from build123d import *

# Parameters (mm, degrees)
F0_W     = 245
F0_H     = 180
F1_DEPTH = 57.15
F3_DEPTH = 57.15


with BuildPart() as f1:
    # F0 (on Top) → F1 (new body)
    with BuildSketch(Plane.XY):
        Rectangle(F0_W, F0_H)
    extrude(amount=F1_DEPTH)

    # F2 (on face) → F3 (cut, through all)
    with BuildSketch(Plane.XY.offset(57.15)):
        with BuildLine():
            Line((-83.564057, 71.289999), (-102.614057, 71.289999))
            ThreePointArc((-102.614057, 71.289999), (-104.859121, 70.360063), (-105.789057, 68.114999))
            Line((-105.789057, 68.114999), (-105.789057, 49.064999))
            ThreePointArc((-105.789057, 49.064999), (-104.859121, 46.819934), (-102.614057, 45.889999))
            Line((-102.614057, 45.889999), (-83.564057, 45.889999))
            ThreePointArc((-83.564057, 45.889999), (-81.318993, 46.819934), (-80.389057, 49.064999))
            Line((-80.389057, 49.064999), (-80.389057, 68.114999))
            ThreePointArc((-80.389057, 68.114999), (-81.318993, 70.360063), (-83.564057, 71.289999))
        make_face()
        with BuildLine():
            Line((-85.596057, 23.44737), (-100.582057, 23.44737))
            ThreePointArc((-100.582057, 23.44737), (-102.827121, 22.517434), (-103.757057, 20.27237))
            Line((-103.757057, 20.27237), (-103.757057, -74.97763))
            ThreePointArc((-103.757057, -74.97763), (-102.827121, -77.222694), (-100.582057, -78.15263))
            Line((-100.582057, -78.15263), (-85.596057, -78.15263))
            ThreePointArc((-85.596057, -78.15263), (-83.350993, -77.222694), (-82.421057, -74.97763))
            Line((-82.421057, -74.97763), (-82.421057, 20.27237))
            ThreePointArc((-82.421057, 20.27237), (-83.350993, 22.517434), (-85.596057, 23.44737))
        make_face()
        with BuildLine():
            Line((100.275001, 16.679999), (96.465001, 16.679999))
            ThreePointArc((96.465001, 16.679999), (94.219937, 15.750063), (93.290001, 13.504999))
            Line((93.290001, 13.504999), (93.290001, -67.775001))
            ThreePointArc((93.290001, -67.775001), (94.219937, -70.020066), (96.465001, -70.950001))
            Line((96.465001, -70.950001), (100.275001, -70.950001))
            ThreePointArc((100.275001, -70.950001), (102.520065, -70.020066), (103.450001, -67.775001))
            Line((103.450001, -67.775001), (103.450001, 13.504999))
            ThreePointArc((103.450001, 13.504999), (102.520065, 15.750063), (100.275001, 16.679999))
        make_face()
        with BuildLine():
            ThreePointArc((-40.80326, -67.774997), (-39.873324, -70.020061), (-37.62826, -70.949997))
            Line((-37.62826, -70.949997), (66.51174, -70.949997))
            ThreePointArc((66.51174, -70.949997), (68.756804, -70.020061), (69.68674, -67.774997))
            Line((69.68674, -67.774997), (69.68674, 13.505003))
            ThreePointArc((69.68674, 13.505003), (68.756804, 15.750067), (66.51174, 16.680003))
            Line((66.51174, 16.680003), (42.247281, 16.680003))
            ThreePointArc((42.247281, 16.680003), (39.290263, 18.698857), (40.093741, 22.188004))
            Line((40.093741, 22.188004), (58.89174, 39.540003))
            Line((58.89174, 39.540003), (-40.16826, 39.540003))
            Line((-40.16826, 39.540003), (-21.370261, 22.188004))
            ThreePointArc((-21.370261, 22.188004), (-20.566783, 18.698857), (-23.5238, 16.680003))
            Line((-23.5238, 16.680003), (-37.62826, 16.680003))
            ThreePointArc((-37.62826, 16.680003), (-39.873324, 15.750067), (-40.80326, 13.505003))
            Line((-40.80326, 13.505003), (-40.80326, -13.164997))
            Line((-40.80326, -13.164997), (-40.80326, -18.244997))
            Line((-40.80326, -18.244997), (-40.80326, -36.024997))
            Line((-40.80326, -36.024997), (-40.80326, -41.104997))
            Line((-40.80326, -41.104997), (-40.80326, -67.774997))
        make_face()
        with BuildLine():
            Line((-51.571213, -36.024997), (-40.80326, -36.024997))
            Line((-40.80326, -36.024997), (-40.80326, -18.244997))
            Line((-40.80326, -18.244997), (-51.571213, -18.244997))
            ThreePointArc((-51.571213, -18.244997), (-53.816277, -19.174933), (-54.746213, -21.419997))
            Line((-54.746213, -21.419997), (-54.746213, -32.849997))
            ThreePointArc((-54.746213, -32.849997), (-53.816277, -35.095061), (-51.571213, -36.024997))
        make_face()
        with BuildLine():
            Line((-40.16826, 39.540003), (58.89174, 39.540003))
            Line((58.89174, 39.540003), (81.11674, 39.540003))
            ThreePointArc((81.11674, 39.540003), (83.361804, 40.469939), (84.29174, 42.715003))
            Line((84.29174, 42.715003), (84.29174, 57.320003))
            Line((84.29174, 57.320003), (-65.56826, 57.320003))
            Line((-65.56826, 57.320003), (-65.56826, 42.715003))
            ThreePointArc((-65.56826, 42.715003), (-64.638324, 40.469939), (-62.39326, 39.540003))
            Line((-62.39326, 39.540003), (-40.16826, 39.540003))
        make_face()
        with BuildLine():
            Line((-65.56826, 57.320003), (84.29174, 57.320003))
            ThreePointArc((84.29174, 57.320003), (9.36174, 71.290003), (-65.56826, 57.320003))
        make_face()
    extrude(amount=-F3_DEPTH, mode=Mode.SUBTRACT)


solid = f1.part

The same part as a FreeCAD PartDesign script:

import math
import FreeCAD as App
import Part
import Sketcher
from FreeCAD import Vector
Q = App.Units.Quantity

doc = App.newDocument("Part")
body = doc.addObject("PartDesign::Body", "Body")

sketch1 = doc.addObject("Sketcher::SketchObject", "Sketch")
body.addObject(sketch1)
sketch1.AttachmentSupport = (doc.XY_Plane, [""])
sketch1.MapMode = "FlatFace"
sketch1.addGeometry([
    Part.LineSegment(Vector(-122, 90, 0), Vector(-122, -90, 0)),
    Part.LineSegment(Vector(-122, -90, 0), Vector(122, -90, 0)),
    Part.LineSegment(Vector(122, -90, 0), Vector(122, 90, 0)),
    Part.LineSegment(Vector(122, 90, 0), Vector(-122, 90, 0)),
], False)
sketch1.addConstraint([
    Sketcher.Constraint("Coincident", 0, 2, 1, 1),
    Sketcher.Constraint("Coincident", 1, 2, 2, 1),
    Sketcher.Constraint("Coincident", 2, 2, 3, 1),
    Sketcher.Constraint("Coincident", 3, 2, 0, 1),
    Sketcher.Constraint("Vertical", 0),
    Sketcher.Constraint("Horizontal", 1),
    Sketcher.Constraint("Vertical", 2),
    Sketcher.Constraint("Horizontal", 3),
    Sketcher.Constraint("Symmetric", 0, 2, 2, 2, -1, 1),
    Sketcher.Constraint("DistanceX", 1, 1, 1, 2, 245.0),
    Sketcher.Constraint("DistanceY", 0, 2, 0, 1, 180.0),
])
pad1 = doc.addObject("PartDesign::Pad", "Pad")
body.addObject(pad1)
pad1.Profile = sketch1
pad1.Length = Q("2.25 in")

sketch2 = doc.addObject("Sketcher::SketchObject", "Sketch001")
body.addObject(sketch2)
sketch2.AttachmentSupport = (doc.XY_Plane, [""])
sketch2.MapMode = "FlatFace"
sketch2.AttachmentOffset = App.Placement(Vector(0, 0, 2.25 * 25.4), App.Rotation())
sketch2.addGeometry([
    Part.LineSegment(Vector(-83.6, 71.3, 0), Vector(-102.6, 71.3, 0)),
    Part.ArcOfCircle(Part.Circle(Vector(-102.6, 68.1, 0), Vector(0, 0, 1), 3.2), math.radians(90), math.radians(180)),
    Part.LineSegment(Vector(-105.8, 68.1, 0), Vector(-105.8, 49.1, 0)),
    Part.ArcOfCircle(Part.Circle(Vector(-102.6, 49.1, 0), Vector(0, 0, 1), 3.2), math.radians(180), math.radians(270)),
    Part.LineSegment(Vector(-102.6, 45.9, 0), Vector(-83.6, 45.9, 0)),
    Part.ArcOfCircle(Part.Circle(Vector(-83.6, 49.1, 0), Vector(0, 0, 1), 3.2), math.radians(-90), math.radians(0)),
    Part.LineSegment(Vector(-80.4, 49.1, 0), Vector(-80.4, 68.1, 0)),
    Part.ArcOfCircle(Part.Circle(Vector(-83.6, 68.1, 0), Vector(0, 0, 1), 3.2), math.radians(0), math.radians(90)),
    Part.LineSegment(Vector(-85.6, 23.4, 0), Vector(-100.6, 23.4, 0)),
    Part.ArcOfCircle(Part.Circle(Vector(-100.6, 20.3, 0), Vector(0, 0, 1), 3.2), math.radians(90), math.radians(180)),
    Part.LineSegment(Vector(-103.8, 20.3, 0), Vector(-103.8, -75, 0)),
    Part.ArcOfCircle(Part.Circle(Vector(-100.6, -75, 0), Vector(0, 0, 1), 3.2), math.radians(-180), math.radians(-90)),
    Part.LineSegment(Vector(-100.6, -78.2, 0), Vector(-85.6, -78.2, 0)),
    Part.ArcOfCircle(Part.Circle(Vector(-85.6, -75, 0), Vector(0, 0, 1), 3.2), math.radians(-90), math.radians(0)),
    Part.LineSegment(Vector(-82.4, -75, 0), Vector(-82.4, 20.3, 0)),
    Part.ArcOfCircle(Part.Circle(Vector(-85.6, 20.3, 0), Vector(0, 0, 1), 3.2), math.radians(0), math.radians(90)),
    Part.LineSegment(Vector(100.3, 16.7, 0), Vector(96.5, 16.7, 0)),
    Part.ArcOfCircle(Part.Circle(Vector(96.5, 13.5, 0), Vector(0, 0, 1), 3.2), math.radians(90), math.radians(180)),
    Part.LineSegment(Vector(93.3, 13.5, 0), Vector(93.3, -67.8, 0)),
    Part.ArcOfCircle(Part.Circle(Vector(96.5, -67.8, 0), Vector(0, 0, 1), 3.2), math.radians(180), math.radians(270)),
    Part.LineSegment(Vector(96.5, -71, 0), Vector(100.3, -71, 0)),
    Part.ArcOfCircle(Part.Circle(Vector(100.3, -67.8, 0), Vector(0, 0, 1), 3.2), math.radians(-90), math.radians(0)),
    Part.LineSegment(Vector(103.5, -67.8, 0), Vector(103.5, 13.5, 0)),
    Part.ArcOfCircle(Part.Circle(Vector(100.3, 13.5, 0), Vector(0, 0, 1), 3.2), math.radians(0), math.radians(90)),
    Part.ArcOfCircle(Part.Circle(Vector(-37.6, -67.8, 0), Vector(0, 0, 1), 3.2), math.radians(-180), math.radians(-90)),
    Part.LineSegment(Vector(-37.6, -70.9, 0), Vector(66.5, -70.9, 0)),
    Part.ArcOfCircle(Part.Circle(Vector(66.5, -67.8, 0), Vector(0, 0, 1), 3.2), math.radians(-90), math.radians(0)),
    Part.LineSegment(Vector(69.7, -67.8, 0), Vector(69.7, 13.5, 0)),
    Part.ArcOfCircle(Part.Circle(Vector(66.5, 13.5, 0), Vector(0, 0, 1), 3.2), math.radians(0), math.radians(90)),
    Part.LineSegment(Vector(66.5, 16.7, 0), Vector(42.2, 16.7, 0)),
    Part.ArcOfCircle(Part.Circle(Vector(42.2, 19.9, 0), Vector(0, 0, 1), 3.2), math.radians(133), math.radians(270)),
    Part.LineSegment(Vector(40.1, 22.2, 0), Vector(58.9, 39.5, 0)),
    Part.LineSegment(Vector(58.9, 39.5, 0), Vector(81.1, 39.5, 0)),
    Part.ArcOfCircle(Part.Circle(Vector(81.1, 42.7, 0), Vector(0, 0, 1), 3.2), math.radians(-90), math.radians(0)),
    Part.LineSegment(Vector(84.3, 42.7, 0), Vector(84.3, 57.3, 0)),
    Part.ArcOfCircle(Part.Circle(Vector(9.4, -136.6, 0), Vector(0, 0, 1), 207.9), math.radians(69), math.radians(111)),
    Part.LineSegment(Vector(-65.6, 57.3, 0), Vector(-65.6, 42.7, 0)),
    Part.ArcOfCircle(Part.Circle(Vector(-62.4, 42.7, 0), Vector(0, 0, 1), 3.2), math.radians(-180), math.radians(-90)),
    Part.LineSegment(Vector(-62.4, 39.5, 0), Vector(-40.2, 39.5, 0)),
    Part.LineSegment(Vector(-40.2, 39.5, 0), Vector(-21.4, 22.2, 0)),
    Part.ArcOfCircle(Part.Circle(Vector(-23.5, 19.9, 0), Vector(0, 0, 1), 3.2), math.radians(-90), math.radians(47)),
    Part.LineSegment(Vector(-23.5, 16.7, 0), Vector(-37.6, 16.7, 0)),
    Part.ArcOfCircle(Part.Circle(Vector(-37.6, 13.5, 0), Vector(0, 0, 1), 3.2), math.radians(90), math.radians(180)),
    Part.LineSegment(Vector(-40.8, 13.5, 0), Vector(-40.8, -18.2, 0)),
    Part.LineSegment(Vector(-40.8, -18.2, 0), Vector(-51.6, -18.2, 0)),
    Part.ArcOfCircle(Part.Circle(Vector(-51.6, -21.4, 0), Vector(0, 0, 1), 3.2), math.radians(90), math.radians(180)),
    Part.LineSegment(Vector(-54.7, -21.4, 0), Vector(-54.7, -32.8, 0)),
    Part.ArcOfCircle(Part.Circle(Vector(-51.6, -32.8, 0), Vector(0, 0, 1), 3.2), math.radians(-180), math.radians(-90)),
    Part.LineSegment(Vector(-51.6, -36, 0), Vector(-40.8, -36, 0)),
    Part.LineSegment(Vector(-40.8, -36, 0), Vector(-40.8, -67.8, 0)),
], False)
sketch2.addConstraint([
    Sketcher.Constraint("Tangent", 0, 2, 1, 1),
    Sketcher.Constraint("Tangent", 1, 2, 2, 1),
    Sketcher.Constraint("Tangent", 2, 2, 3, 1),
    Sketcher.Constraint("Tangent", 3, 2, 4, 1),
    Sketcher.Constraint("Tangent", 4, 2, 5, 1),
    Sketcher.Constraint("Tangent", 5, 2, 6, 1),
    Sketcher.Constraint("Tangent", 6, 2, 7, 1),
    Sketcher.Constraint("Tangent", 7, 2, 0, 1),
    Sketcher.Constraint("Tangent", 8, 2, 9, 1),
    Sketcher.Constraint("Tangent", 9, 2, 10, 1),
    Sketcher.Constraint("Tangent", 10, 2, 11, 1),
    Sketcher.Constraint("Tangent", 11, 2, 12, 1),
    Sketcher.Constraint("Tangent", 12, 2, 13, 1),
    Sketcher.Constraint("Tangent", 13, 2, 14, 1),
    Sketcher.Constraint("Tangent", 14, 2, 15, 1),
    Sketcher.Constraint("Tangent", 15, 2, 8, 1),
    Sketcher.Constraint("Tangent", 16, 2, 17, 1),
    Sketcher.Constraint("Tangent", 17, 2, 18, 1),
    Sketcher.Constraint("Tangent", 18, 2, 19, 1),
    Sketcher.Constraint("Tangent", 19, 2, 20, 1),
    Sketcher.Constraint("Tangent", 20, 2, 21, 1),
    Sketcher.Constraint("Tangent", 21, 2, 22, 1),
    Sketcher.Constraint("Tangent", 22, 2, 23, 1),
    Sketcher.Constraint("Tangent", 23, 2, 16, 1),
    Sketcher.Constraint("Tangent", 24, 2, 25, 1),
    Sketcher.Constraint("Tangent", 25, 2, 26, 1),
    Sketcher.Constraint("Tangent", 26, 2, 27, 1),
    Sketcher.Constraint("Tangent", 27, 2, 28, 1),
    Sketcher.Constraint("Tangent", 28, 2, 29, 1),
    Sketcher.Constraint("Tangent", 29, 2, 30, 2),
    Sketcher.Constraint("Tangent", 30, 1, 31, 1),
    Sketcher.Constraint("Coincident", 31, 2, 32, 1),
    Sketcher.Constraint("Tangent", 32, 2, 33, 1),
    Sketcher.Constraint("Tangent", 33, 2, 34, 1),
    Sketcher.Constraint("Coincident", 34, 2, 35, 1),
    Sketcher.Constraint("Coincident", 35, 2, 36, 1),
    Sketcher.Constraint("Tangent", 36, 2, 37, 1),
    Sketcher.Constraint("Tangent", 37, 2, 38, 1),
    Sketcher.Constraint("Coincident", 38, 2, 39, 1),
    Sketcher.Constraint("Tangent", 39, 2, 40, 2),
    Sketcher.Constraint("Tangent", 40, 1, 41, 1),
    Sketcher.Constraint("Tangent", 41, 2, 42, 1),
    Sketcher.Constraint("Tangent", 42, 2, 43, 1),
    Sketcher.Constraint("Coincident", 43, 2, 44, 1),
    Sketcher.Constraint("Tangent", 44, 2, 45, 1),
    Sketcher.Constraint("Tangent", 45, 2, 46, 1),
    Sketcher.Constraint("Tangent", 46, 2, 47, 1),
    Sketcher.Constraint("Tangent", 47, 2, 48, 1),
    Sketcher.Constraint("Coincident", 48, 2, 49, 1),
    Sketcher.Constraint("Tangent", 49, 2, 24, 1),
    Sketcher.Constraint("Horizontal", 0),
    Sketcher.Constraint("Vertical", 2),
    Sketcher.Constraint("Horizontal", 4),
    Sketcher.Constraint("Vertical", 6),
    Sketcher.Constraint("Horizontal", 8),
    Sketcher.Constraint("Vertical", 10),
    Sketcher.Constraint("Horizontal", 12),
    Sketcher.Constraint("Vertical", 14),
    Sketcher.Constraint("Horizontal", 16),
    Sketcher.Constraint("Vertical", 18),
    Sketcher.Constraint("Horizontal", 20),
    Sketcher.Constraint("Vertical", 22),
    Sketcher.Constraint("Horizontal", 25),
    Sketcher.Constraint("Vertical", 27),
    Sketcher.Constraint("Horizontal", 29),
    Sketcher.Constraint("Horizontal", 32),
    Sketcher.Constraint("Vertical", 34),
    Sketcher.Constraint("Vertical", 36),
    Sketcher.Constraint("Horizontal", 38),
    Sketcher.Constraint("Horizontal", 41),
    Sketcher.Constraint("Vertical", 43),
    Sketcher.Constraint("Horizontal", 44),
    Sketcher.Constraint("Vertical", 46),
    Sketcher.Constraint("Horizontal", 48),
    Sketcher.Constraint("Vertical", 49),
    Sketcher.Constraint("Equal", 1, 3),
    Sketcher.Constraint("Equal", 3, 5),
    Sketcher.Constraint("Equal", 5, 7),
    Sketcher.Constraint("Equal", 7, 9),
    Sketcher.Constraint("Equal", 9, 11),
    Sketcher.Constraint("Equal", 11, 13),
    Sketcher.Constraint("Equal", 13, 15),
    Sketcher.Constraint("Equal", 15, 17),
    Sketcher.Constraint("Equal", 17, 19),
    Sketcher.Constraint("Equal", 19, 21),
    Sketcher.Constraint("Equal", 21, 23),
    Sketcher.Constraint("Equal", 23, 24),
    Sketcher.Constraint("Equal", 24, 26),
    Sketcher.Constraint("Equal", 26, 28),
    Sketcher.Constraint("Equal", 28, 30),
    Sketcher.Constraint("Equal", 30, 33),
    Sketcher.Constraint("Equal", 33, 37),
    Sketcher.Constraint("Equal", 37, 40),
    Sketcher.Constraint("Equal", 40, 42),
    Sketcher.Constraint("Equal", 42, 45),
    Sketcher.Constraint("Equal", 45, 47),
    Sketcher.Constraint("Horizontal", 33, 3, 37, 3),
    Sketcher.Constraint("Horizontal", 30, 3, 40, 3),
    Sketcher.Constraint("Horizontal", 34, 2, 35, 2),
    Sketcher.Constraint("Horizontal", 30, 1, 39, 2),
    Sketcher.Constraint("Vertical", 24, 3, 42, 3),
    Sketcher.Constraint("Equal", 32, 38),
    Sketcher.Constraint("Equal", 4, 2),
    Sketcher.Constraint("Equal", 22, 27),
    Sketcher.Constraint("Equal", 43, 49),
    Sketcher.Constraint("DistanceX", 25, 1, 25, 2, Q("4.1 in")),
    Sketcher.Constraint("DistanceY", 18, 2, 18, 1, Q("3.2 in")),
    Sketcher.Constraint("Radius", 1, Q("0.125 in")),
    Sketcher.Constraint("DistanceX", 0, 2, 0, 1, Q("0.75 in")),
    Sketcher.Constraint("DistanceX", 8, 2, 8, 1, Q("0.59 in")),
    Sketcher.Constraint("DistanceX", 16, 2, 16, 1, Q("0.15 in")),
    Sketcher.Constraint("DistanceY", 10, 2, 10, 1, Q("3.75 in")),
    Sketcher.Constraint("DistanceY", 43, 2, 43, 1, Q("1.25 in")),
    Sketcher.Constraint("DistanceX", 32, 1, 32, 2, Q("0.875 in")),
    Sketcher.Constraint("DistanceY", 34, 1, 34, 2, Q("0.575 in")),
    Sketcher.Constraint("Radius", 35, 207.933636),
    Sketcher.Constraint("DistanceX", 29, 2, 29, 1, 24.264459),
    Sketcher.Constraint("DistanceX", 41, 2, 41, 1, 14.10446),
    Sketcher.Constraint("DistanceY", -1, 1, 1, 3, 68.114999),
    Sketcher.Constraint("DistanceX", -1, 1, 17, 3, 96.465001),
    Sketcher.Constraint("DistanceY", -1, 1, 17, 3, 13.504999),
    Sketcher.Constraint("DistanceX", 40, 3, -1, 1, 23.5238),
    Sketcher.Constraint("Distance", 31, 25.58235),
    Sketcher.Constraint("DistanceX", 44, 2, 44, 1, 10.767953),
    Sketcher.Constraint("DistanceX", 3, 3, -1, 1, 102.614059),
    Sketcher.Constraint("DistanceY", -1, 1, 9, 3, 20.27237),
    Sketcher.Constraint("DistanceX", -1, 1, 33, 3, 81.11674),
    Sketcher.Constraint("DistanceX", 9, 3, -1, 1, 100.582057),
    Sketcher.Constraint("DistanceY", 24, 3, -1, 1, 67.774997),
])
pocket1 = doc.addObject("PartDesign::Pocket", "Pocket")
body.addObject(pocket1)
pocket1.Profile = sketch2
pocket1.Type = "ThroughAll"

doc.recompute()
